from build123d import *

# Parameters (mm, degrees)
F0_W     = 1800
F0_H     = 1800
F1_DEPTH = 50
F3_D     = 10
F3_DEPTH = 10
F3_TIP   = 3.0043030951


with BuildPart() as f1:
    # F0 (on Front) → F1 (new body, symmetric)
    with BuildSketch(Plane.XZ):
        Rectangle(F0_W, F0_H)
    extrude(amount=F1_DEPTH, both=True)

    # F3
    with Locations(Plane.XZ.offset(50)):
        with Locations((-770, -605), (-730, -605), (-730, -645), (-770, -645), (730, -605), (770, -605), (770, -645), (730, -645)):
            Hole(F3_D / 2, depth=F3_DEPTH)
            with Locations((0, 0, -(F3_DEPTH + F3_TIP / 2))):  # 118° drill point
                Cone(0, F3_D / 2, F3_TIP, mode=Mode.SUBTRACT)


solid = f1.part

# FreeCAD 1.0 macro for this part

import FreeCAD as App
import Part
import Sketcher

doc = App.newDocument("Part")
body = doc.addObject("PartDesign::Body", "Body")

# Sketch on XZ plane
sketch1 = doc.addObject("Sketcher::SketchObject", "Sketch")
body.addObject(sketch1)
sketch1.AttachmentSupport = (doc.XZ_Plane, [""])
sketch1.MapMode = "FlatFace"
sketch1.addGeometry([
    Part.LineSegment(App.Vector(-900, 900, 0), App.Vector(-900, -900, 0)),
    Part.LineSegment(App.Vector(-900, -900, 0), App.Vector(900, -900, 0)),
    Part.LineSegment(App.Vector(900, -900, 0), App.Vector(900, 900, 0)),
    Part.LineSegment(App.Vector(900, 900, 0), App.Vector(-900, 900, 0)),
], False)
sketch1.addConstraint([
    Sketcher.Constraint("Coincident", 0, 2, 1, 1),
    Sketcher.Constraint("Coincident", 1, 2, 2, 1),
    Sketcher.Constraint("Coincident", 2, 2, 3, 1),
    Sketcher.Constraint("Coincident", 3, 2, 0, 1),
    Sketcher.Constraint("Vertical", 0),
    Sketcher.Constraint("Horizontal", 1),
    Sketcher.Constraint("Vertical", 2),
    Sketcher.Constraint("Horizontal", 3),
    Sketcher.Constraint("Symmetric", 0, 2, 2, 2, -1, 1),
    Sketcher.Constraint("Equal", 3, 0),
    Sketcher.Constraint("DistanceX", 1, 1, 1, 2, 1800.0),
])
pad1 = doc.addObject("PartDesign::Pad", "Pad")
body.addObject(pad1)
pad1.Profile = sketch1
pad1.Length = 100
pad1.Midplane = True

# Sketch on XZ plane
sketch2 = doc.addObject("Sketcher::SketchObject", "Sketch001")
body.addObject(sketch2)
sketch2.AttachmentSupport = (doc.XZ_Plane, [""])
sketch2.MapMode = "FlatFace"
sketch2.AttachmentOffset = App.Placement(App.Vector(0, 0, 50), App.Rotation())
sketch2.addGeometry([
    Part.Circle(App.Vector(-770, -605, 0), App.Vector(0, 0, 1), 5),  # 0
    Part.Circle(App.Vector(-730, -605, 0), App.Vector(0, 0, 1), 5),  # 1
    Part.Circle(App.Vector(-730, -645, 0), App.Vector(0, 0, 1), 5),  # 2
    Part.Circle(App.Vector(-770, -645, 0), App.Vector(0, 0, 1), 5),  # 3
    Part.Circle(App.Vector(730, -605, 0), App.Vector(0, 0, 1), 5),  # 4
    Part.Circle(App.Vector(770, -605, 0), App.Vector(0, 0, 1), 5),  # 5
    Part.Circle(App.Vector(770, -645, 0), App.Vector(0, 0, 1), 5),  # 6
    Part.Circle(App.Vector(730, -645, 0), App.Vector(0, 0, 1), 5),  # 7
], False)
sketch2.addConstraint([
    Sketcher.Constraint("Equal", 0, 1),
    Sketcher.Constraint("Equal", 1, 2),
    Sketcher.Constraint("Equal", 2, 3),
    Sketcher.Constraint("Equal", 3, 4),
    Sketcher.Constraint("Equal", 4, 5),
    Sketcher.Constraint("Equal", 5, 6),
    Sketcher.Constraint("Equal", 6, 7),
    Sketcher.Constraint("Symmetric", 1, 3, 4, 3, -2),
    Sketcher.Constraint("Symmetric", 0, 3, 5, 3, -2),
    Sketcher.Constraint("Symmetric", 3, 3, 6, 3, -2),
    Sketcher.Constraint("Symmetric", 2, 3, 7, 3, -2),
    Sketcher.Constraint("Horizontal", 0, 3, 1, 3),
    Sketcher.Constraint("Horizontal", 2, 3, 3, 3),
    Sketcher.Constraint("Vertical", 1, 3, 2, 3),
    Sketcher.Constraint("Vertical", 0, 3, 3, 3),
    Sketcher.Constraint("Diameter", 0, 10.0),
    Sketcher.Constraint("DistanceX", 0, 3, -1, 1, 770.0),
    Sketcher.Constraint("DistanceY", 0, 3, -1, 1, 605.0),
    Sketcher.Constraint("DistanceX", 1, 3, -1, 1, 730.0),
    Sketcher.Constraint("DistanceY", 2, 3, -1, 1, 645.0),
])
doc.recompute()
hole = doc.addObject("PartDesign::Hole", "Hole")
body.addObject(hole)
hole.Profile = sketch2
hole.ThreadType = "None"
hole.Diameter = 10
hole.DepthType = "Dimension"
hole.Depth = 10
hole.DrillPoint = "Angled"
hole.DrillPointAngle = 118

doc.recompute()
